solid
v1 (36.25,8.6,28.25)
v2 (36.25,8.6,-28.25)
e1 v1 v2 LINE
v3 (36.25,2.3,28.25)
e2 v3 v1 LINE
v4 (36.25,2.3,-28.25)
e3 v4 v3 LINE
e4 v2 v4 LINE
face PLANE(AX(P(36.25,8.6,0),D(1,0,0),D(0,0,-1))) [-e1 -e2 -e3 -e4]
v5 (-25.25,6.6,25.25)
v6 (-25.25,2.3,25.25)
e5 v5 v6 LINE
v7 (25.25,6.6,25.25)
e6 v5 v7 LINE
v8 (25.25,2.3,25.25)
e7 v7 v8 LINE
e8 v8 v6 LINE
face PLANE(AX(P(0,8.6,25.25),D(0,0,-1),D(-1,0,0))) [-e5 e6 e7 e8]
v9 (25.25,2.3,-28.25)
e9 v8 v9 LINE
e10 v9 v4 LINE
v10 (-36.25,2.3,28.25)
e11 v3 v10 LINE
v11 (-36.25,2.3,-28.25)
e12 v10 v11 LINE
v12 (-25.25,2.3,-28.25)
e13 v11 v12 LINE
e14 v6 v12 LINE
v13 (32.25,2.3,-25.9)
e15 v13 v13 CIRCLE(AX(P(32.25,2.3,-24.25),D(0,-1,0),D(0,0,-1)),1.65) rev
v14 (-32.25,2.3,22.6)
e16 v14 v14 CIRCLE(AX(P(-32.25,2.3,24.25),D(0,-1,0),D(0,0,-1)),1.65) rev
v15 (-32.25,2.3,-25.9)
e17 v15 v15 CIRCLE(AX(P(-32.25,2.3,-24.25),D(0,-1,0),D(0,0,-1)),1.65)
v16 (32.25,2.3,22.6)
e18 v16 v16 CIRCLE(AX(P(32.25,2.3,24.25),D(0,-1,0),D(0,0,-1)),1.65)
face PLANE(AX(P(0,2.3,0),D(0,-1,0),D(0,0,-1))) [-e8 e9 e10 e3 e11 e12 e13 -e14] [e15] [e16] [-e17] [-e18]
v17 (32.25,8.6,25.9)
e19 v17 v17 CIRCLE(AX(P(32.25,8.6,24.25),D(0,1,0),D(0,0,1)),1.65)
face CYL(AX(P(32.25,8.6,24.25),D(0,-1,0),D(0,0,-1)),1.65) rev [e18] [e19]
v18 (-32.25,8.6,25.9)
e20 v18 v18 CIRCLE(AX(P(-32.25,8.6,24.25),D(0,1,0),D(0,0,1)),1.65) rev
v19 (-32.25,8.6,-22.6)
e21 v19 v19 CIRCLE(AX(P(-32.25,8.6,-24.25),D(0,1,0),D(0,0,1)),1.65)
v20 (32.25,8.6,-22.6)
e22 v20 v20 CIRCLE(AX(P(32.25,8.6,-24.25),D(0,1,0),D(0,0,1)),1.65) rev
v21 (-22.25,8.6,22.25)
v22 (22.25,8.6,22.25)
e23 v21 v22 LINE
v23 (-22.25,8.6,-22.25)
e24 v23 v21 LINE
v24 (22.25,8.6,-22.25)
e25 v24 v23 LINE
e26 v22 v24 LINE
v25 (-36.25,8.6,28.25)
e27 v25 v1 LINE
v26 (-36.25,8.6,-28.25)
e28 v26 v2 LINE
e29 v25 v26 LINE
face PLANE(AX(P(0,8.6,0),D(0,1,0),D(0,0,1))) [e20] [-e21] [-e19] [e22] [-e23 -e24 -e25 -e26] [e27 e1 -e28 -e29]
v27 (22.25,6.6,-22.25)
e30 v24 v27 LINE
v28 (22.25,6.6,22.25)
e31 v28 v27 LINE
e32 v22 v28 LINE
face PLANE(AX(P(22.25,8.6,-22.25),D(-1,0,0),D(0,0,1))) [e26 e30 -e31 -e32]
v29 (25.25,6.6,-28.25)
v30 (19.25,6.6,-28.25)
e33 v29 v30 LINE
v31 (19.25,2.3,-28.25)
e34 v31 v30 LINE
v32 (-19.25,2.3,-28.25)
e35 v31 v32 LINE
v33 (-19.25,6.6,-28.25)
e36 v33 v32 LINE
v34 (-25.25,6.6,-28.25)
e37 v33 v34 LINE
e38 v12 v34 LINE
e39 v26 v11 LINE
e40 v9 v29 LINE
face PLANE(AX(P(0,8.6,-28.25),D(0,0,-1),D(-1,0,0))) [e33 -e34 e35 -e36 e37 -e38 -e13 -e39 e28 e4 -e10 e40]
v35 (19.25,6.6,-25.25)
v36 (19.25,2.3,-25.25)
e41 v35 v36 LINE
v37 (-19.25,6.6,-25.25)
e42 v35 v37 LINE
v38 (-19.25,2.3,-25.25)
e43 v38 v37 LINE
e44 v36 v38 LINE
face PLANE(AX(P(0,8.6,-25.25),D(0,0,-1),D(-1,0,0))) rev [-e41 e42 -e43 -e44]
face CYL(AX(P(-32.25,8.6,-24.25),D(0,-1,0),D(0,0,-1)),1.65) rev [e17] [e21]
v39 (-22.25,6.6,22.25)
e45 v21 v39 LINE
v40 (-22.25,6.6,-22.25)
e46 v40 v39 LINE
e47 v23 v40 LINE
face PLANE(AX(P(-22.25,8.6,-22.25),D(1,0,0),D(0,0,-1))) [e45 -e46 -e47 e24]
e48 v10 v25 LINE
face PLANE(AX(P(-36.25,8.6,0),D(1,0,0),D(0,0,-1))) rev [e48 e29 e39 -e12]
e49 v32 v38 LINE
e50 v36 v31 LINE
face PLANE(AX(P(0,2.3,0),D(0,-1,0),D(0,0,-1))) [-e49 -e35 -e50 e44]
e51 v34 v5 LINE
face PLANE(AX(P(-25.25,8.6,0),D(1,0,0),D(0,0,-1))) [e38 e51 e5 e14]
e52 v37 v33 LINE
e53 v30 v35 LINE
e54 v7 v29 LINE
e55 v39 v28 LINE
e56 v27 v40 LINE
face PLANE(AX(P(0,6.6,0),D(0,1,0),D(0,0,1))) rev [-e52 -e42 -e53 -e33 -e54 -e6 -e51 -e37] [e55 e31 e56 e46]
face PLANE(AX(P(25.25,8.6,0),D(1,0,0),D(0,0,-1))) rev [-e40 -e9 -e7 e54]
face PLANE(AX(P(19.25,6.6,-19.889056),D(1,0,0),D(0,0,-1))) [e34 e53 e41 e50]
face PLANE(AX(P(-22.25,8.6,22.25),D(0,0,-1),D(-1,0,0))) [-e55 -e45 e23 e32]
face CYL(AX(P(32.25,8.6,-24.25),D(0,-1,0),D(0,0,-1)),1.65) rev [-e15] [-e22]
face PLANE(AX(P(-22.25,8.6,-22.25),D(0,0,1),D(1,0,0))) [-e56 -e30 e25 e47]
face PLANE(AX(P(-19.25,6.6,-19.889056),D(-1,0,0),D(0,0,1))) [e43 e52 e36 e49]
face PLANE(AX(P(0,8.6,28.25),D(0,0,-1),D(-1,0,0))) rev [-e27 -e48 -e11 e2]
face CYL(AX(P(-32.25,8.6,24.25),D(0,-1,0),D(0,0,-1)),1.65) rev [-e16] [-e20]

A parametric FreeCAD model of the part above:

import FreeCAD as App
import Part
import Sketcher


def add_polygon(sketch, points):
    """Adds a closed chain of lines whose ends are joined by coincident constraints."""
    first, n = sketch.GeometryCount, len(points)
    for a, b in zip(points, points[1:] + points[:1]):
        sketch.addGeometry(Part.LineSegment(App.Vector(*a, 0), App.Vector(*b, 0)), False)
    for i in range(n):
        sketch.addConstraint(Sketcher.Constraint("Coincident", first + i, 2, first + (i + 1) % n, 1))

doc = App.newDocument("Part")
body = doc.addObject("PartDesign::Body", "Body")

# Sketch on XZ plane
sketch1 = body.newObject("Sketcher::SketchObject", "Sketch")
sketch1.AttachmentSupport = (doc.getObject("XZ_Plane"), [""])
sketch1.MapMode = "FlatFace"
add_polygon(sketch1, [(-28.2, -12.2), (-28.2, 12.2), (-36.2, 20.2), (-36.2, 30.2), (-32.2, 34.2), (-24.2, 34.2), (-18.2, 28.2), (18.2, 28.2), (24.2, 34.2), (32.2, 34.2), (36.2, 30.2), (36.2, 20.2), (28.2, 12.2), (28.2, -12.2), (36.2, -20.2), (36.2, -30.2), (32.2, -34.2), (24.2, -34.2), (18.2, -28.2), (-18.2, -28.2), (-24.2, -34.2), (-32.2, -34.2), (-36.2, -30.2), (-36.2, -20.2)])  # lines 0-23
sketch1.addGeometry(Part.Circle(App.Vector(-32.2, 24.2, 0), App.Vector(0, 0, 1), 1.6), False)  # 24
add_polygon(sketch1, [(25.2, 25.2), (-25.2, 25.2), (-25.2, -25.2), (25.2, -25.2)])  # lines 25-28
sketch1.addGeometry(Part.Circle(App.Vector(32.2, 24.2, 0), App.Vector(0, 0, 1), 1.6), False)  # 29
sketch1.addGeometry(Part.Circle(App.Vector(-32.2, -24.2, 0), App.Vector(0, 0, 1), 1.6), False)  # 30
sketch1.addGeometry(Part.Circle(App.Vector(32.2, -24.2, 0), App.Vector(0, 0, 1), 1.6), False)  # 31
sketch1.addConstraint(Sketcher.Constraint("Vertical", 0))
sketch1.addConstraint(Sketcher.Constraint("Vertical", 2))
sketch1.addConstraint(Sketcher.Constraint("Horizontal", 4))
sketch1.addConstraint(Sketcher.Constraint("Horizontal", 6))
sketch1.addConstraint(Sketcher.Constraint("Horizontal", 8))
sketch1.addConstraint(Sketcher.Constraint("Vertical", 10))
sketch1.addConstraint(Sketcher.Constraint("Vertical", 12))
sketch1.addConstraint(Sketcher.Constraint("Vertical", 14))
sketch1.addConstraint(Sketcher.Constraint("Horizontal", 16))
sketch1.addConstraint(Sketcher.Constraint("Horizontal", 18))
sketch1.addConstraint(Sketcher.Constraint("Horizontal", 20))
sketch1.addConstraint(Sketcher.Constraint("Vertical", 22))
sketch1.addConstraint(Sketcher.Constraint("Horizontal", 25))
sketch1.addConstraint(Sketcher.Constraint("Vertical", 26))
sketch1.addConstraint(Sketcher.Constraint("Horizontal", 27))
sketch1.addConstraint(Sketcher.Constraint("Vertical", 28))
sketch1.addConstraint(Sketcher.Constraint("Equal", 24, 29))
sketch1.addConstraint(Sketcher.Constraint("Equal", 29, 30))
sketch1.addConstraint(Sketcher.Constraint("Equal", 30, 31))
sketch1.addConstraint(Sketcher.Constraint("Symmetric", 29, 3, 30, 3, -1, 1))
sketch1.addConstraint(Sketcher.Constraint("Symmetric", 24, 3, 31, 3, -1, 1))
sketch1.addConstraint(Sketcher.Constraint("Symmetric", 0, 2, 12, 2, -1, 1))
sketch1.addConstraint(Sketcher.Constraint("Symmetric", 1, 2, 13, 2, -1, 1))
sketch1.addConstraint(Sketcher.Constraint("Symmetric", 3, 2, 15, 2, -1, 1))
sketch1.addConstraint(Sketcher.Constraint("Symmetric", 5, 2, 17, 2, -1, 1))
sketch1.addConstraint(Sketcher.Constraint("Symmetric", 7, 2, 19, 2, -1, 1))
sketch1.addConstraint(Sketcher.Constraint("Symmetric", 9, 2, 21, 2, -1, 1))
sketch1.addConstraint(Sketcher.Constraint("Symmetric", 25, 2, 27, 2, -1, 1))
sketch1.addConstraint(Sketcher.Constraint("Symmetric", 24, 3, 29, 3, -2))
sketch1.addConstraint(Sketcher.Constraint("Symmetric", 4, 2, 7, 2, -2))
sketch1.addConstraint(Sketcher.Constraint("Symmetric", 2, 2, 9, 2, -2))
sketch1.addConstraint(Sketcher.Constraint("Perpendicular", 1, 3))
sketch1.addConstraint(Sketcher.Constraint("Perpendicular", 3, 5))
sketch1.addConstraint(Sketcher.Constraint("Perpendicular", 5, 7))
sketch1.addConstraint(Sketcher.Constraint("Perpendicular", 7, 9))
sketch1.addConstraint(Sketcher.Constraint("Perpendicular", 9, 11))
sketch1.addConstraint(Sketcher.Constraint("Perpendicular", 13, 15))
sketch1.addConstraint(Sketcher.Constraint("Perpendicular", 15, 17))
sketch1.addConstraint(Sketcher.Constraint("Perpendicular", 17, 19))
sketch1.addConstraint(Sketcher.Constraint("Perpendicular", 19, 21))
sketch1.addConstraint(Sketcher.Constraint("Perpendicular", 21, 23))
sketch1.addConstraint(Sketcher.Constraint("Horizontal", 1, 2, 10, 2))
sketch1.addConstraint(Sketcher.Constraint("Horizontal", 0, 2, 11, 2))
sketch1.addConstraint(Sketcher.Constraint("Horizontal", 13, 2, 22, 2))
sketch1.addConstraint(Sketcher.Constraint("Vertical", 30, 3, 3, 2))
sketch1.addConstraint(Sketcher.Constraint("Equal", 27, 26))
sketch1.addConstraint(Sketcher.Constraint("Diameter", 24, 3.3))
sketch1.addConstraint(Sketcher.Constraint("DistanceX", 4, 1, 4, 2, 8.0))
sketch1.addConstraint(Sketcher.Constraint("DistanceY", 2, 1, 2, 2, 10.0))
sketch1.addConstraint(Sketcher.Constraint("DistanceX", 6, 1, 6, 2, 36.5))
sketch1.addConstraint(Sketcher.Constraint("DistanceX", 25, 2, 25, 1, 50.5))
sketch1.addConstraint(Sketcher.Constraint("DistanceY", 0, 1, 0, 2, 24.5))
sketch1.addConstraint(Sketcher.Constraint("DistanceX", 24, 3, 0, 2, 4.0))
sketch1.addConstraint(Sketcher.Constraint("DistanceY", 0, 2, 24, 3, 12.0))
sketch1.addConstraint(Sketcher.Constraint("DistanceX", 1, 2, 24, 3, 4.0))
sketch1.addConstraint(Sketcher.Constraint("DistanceX", 4, 2, 5, 2, 6.0))
pad1 = body.newObject("PartDesign::Pad", "Pad")
pad1.Profile = sketch1
pad1.Length = 8.6
pad1.Reversed = True

# Sketch on XZ plane
sketch2 = body.newObject("Sketcher::SketchObject", "Sketch001")
sketch2.AttachmentSupport = (doc.getObject("XZ_Plane"), [""])
sketch2.MapMode = "FlatFace"
add_polygon(sketch2, [(-25, -25), (-25, 25), (25, 25), (25, -25)])  # lines 0-3
add_polygon(sketch2, [(22, 22), (-22, 22), (-22, -22), (22, -22)])  # lines 4-7
sketch2.addConstraint(Sketcher.Constraint("Vertical", 0))
sketch2.addConstraint(Sketcher.Constraint("Horizontal", 1))
sketch2.addConstraint(Sketcher.Constraint("Vertical", 2))
sketch2.addConstraint(Sketcher.Constraint("Horizontal", 3))
sketch2.addConstraint(Sketcher.Constraint("Horizontal", 4))
sketch2.addConstraint(Sketcher.Constraint("Vertical", 5))
sketch2.addConstraint(Sketcher.Constraint("Horizontal", 6))
sketch2.addConstraint(Sketcher.Constraint("Vertical", 7))
sketch2.addConstraint(Sketcher.Constraint("Symmetric", 0, 2, 2, 2, -1, 1))
sketch2.addConstraint(Sketcher.Constraint("Symmetric", 4, 2, 6, 2, -1, 1))
sketch2.addConstraint(Sketcher.Constraint("Equal", 3, 0))
sketch2.addConstraint(Sketcher.Constraint("Equal", 6, 5))
sketch2.addConstraint(Sketcher.Constraint("DistanceX", 1, 1, 1, 2, 50.5))
sketch2.addConstraint(Sketcher.Constraint("DistanceX", 4, 2, 4, 1, 44.5))
pad2 = body.newObject("PartDesign::Pad", "Pad001")
pad2.Profile = sketch2
pad2.Length = 2
pad2.Reversed = True

# Sketch on XZ plane
sketch3 = body.newObject("Sketcher::SketchObject", "Sketch002")
sketch3.AttachmentSupport = (doc.getObject("XZ_Plane"), [""])
sketch3.MapMode = "FlatFace"
sketch3.AttachmentOffset = App.Placement(App.Vector(0, 0, -6.6), App.Rotation())
add_polygon(sketch3, [(-25, -25), (-25, 25), (25, 25), (25, -25)])  # lines 0-3
add_polygon(sketch3, [(22, 22), (-22, 22), (-22, -22), (22, -22)])  # lines 4-7
sketch3.addConstraint(Sketcher.Constraint("Vertical", 0))
sketch3.addConstraint(Sketcher.Constraint("Horizontal", 1))
sketch3.addConstraint(Sketcher.Constraint("Vertical", 2))
sketch3.addConstraint(Sketcher.Constraint("Horizontal", 3))
sketch3.addConstraint(Sketcher.Constraint("Horizontal", 4))
sketch3.addConstraint(Sketcher.Constraint("Vertical", 5))
sketch3.addConstraint(Sketcher.Constraint("Horizontal", 6))
sketch3.addConstraint(Sketcher.Constraint("Vertical", 7))
sketch3.addConstraint(Sketcher.Constraint("Symmetric", 0, 2, 2, 2, -1, 1))
sketch3.addConstraint(Sketcher.Constraint("Symmetric", 4, 2, 6, 2, -1, 1))
sketch3.addConstraint(Sketcher.Constraint("Equal", 3, 0))
sketch3.addConstraint(Sketcher.Constraint("Equal", 6, 5))
sketch3.addConstraint(Sketcher.Constraint("DistanceX", 1, 1, 1, 2, 50.5))
sketch3.addConstraint(Sketcher.Constraint("DistanceX", 4, 2, 4, 1, 44.5))
pad3 = body.newObject("PartDesign::Pad", "Pad002")
pad3.Profile = sketch3
pad3.Length = 2
pad3.Reversed = True

# Sketch on XZ plane
sketch4 = body.newObject("Sketcher::SketchObject", "Sketch003")
sketch4.AttachmentSupport = (doc.getObject("XZ_Plane"), [""])
sketch4.MapMode = "FlatFace"
sketch4.AttachmentOffset = App.Placement(App.Vector(0, 0, -2), App.Rotation())
add_polygon(sketch4, [(-25, -38), (-25, -20), (-19, -20), (-19, -38)])  # lines 0-3
add_polygon(sketch4, [(19, -38), (19, -20), (25, -20), (25, -38)])  # lines 4-7
sketch4.addConstraint(Sketcher.Constraint("Vertical", 0))
sketch4.addConstraint(Sketcher.Constraint("Horizontal", 1))
sketch4.addConstraint(Sketcher.Constraint("Vertical", 2))
sketch4.addConstraint(Sketcher.Constraint("Horizontal", 3))
sketch4.addConstraint(Sketcher.Constraint("Vertical", 4))
sketch4.addConstraint(Sketcher.Constraint("Horizontal", 5))
sketch4.addConstraint(Sketcher.Constraint("Vertical", 6))
sketch4.addConstraint(Sketcher.Constraint("Horizontal", 7))
sketch4.addConstraint(Sketcher.Constraint("Symmetric", 1, 2, 4, 2, -2))
sketch4.addConstraint(Sketcher.Constraint("Symmetric", 3, 2, 6, 2, -2))
sketch4.addConstraint(Sketcher.Constraint("DistanceX", 1, 1, 1, 2, 6.0))
sketch4.addConstraint(Sketcher.Constraint("DistanceX", 1, 2, 4, 2, 38.5))
sketch4.addConstraint(Sketcher.Constraint("DistanceY", 0, 1, 0, 2, 17.961455))
sketch4.addConstraint(Sketcher.Constraint("DistanceY", 2, 2, -1, 1, 37.850511))
pocket1 = body.newObject("PartDesign::Pocket", "Pocket")
pocket1.Profile = sketch4
pocket1.Length = 4.6

# Sketch on XZ plane
sketch5 = body.newObject("Sketcher::SketchObject", "Sketch004")
sketch5.AttachmentSupport = (doc.getObject("XZ_Plane"), [""])
sketch5.MapMode = "FlatFace"
add_polygon(sketch5, [(-42, 40), (-42, -43), (46, -43), (46, 40)])  # lines 0-3
sketch5.addConstraint(Sketcher.Constraint("Vertical", 0))
sketch5.addConstraint(Sketcher.Constraint("Horizontal", 1))
sketch5.addConstraint(Sketcher.Constraint("Vertical", 2))
sketch5.addConstraint(Sketcher.Constraint("Horizontal", 3))
sketch5.addConstraint(Sketcher.Constraint("DistanceY", -1, 1, 2, 2, 39.560001))
sketch5.addConstraint(Sketcher.Constraint("DistanceX", 1, 1, 1, 2, 87.320539))
sketch5.addConstraint(Sketcher.Constraint("DistanceY", 0, 2, 0, 1, 82.157237))
sketch5.addConstraint(Sketcher.Constraint("DistanceX", 0, 2, -1, 1, 41.761997))
pocket2 = body.newObject("PartDesign::Pocket", "Pocket001")
pocket2.Profile = sketch5
pocket2.Length = 2.3

# Sketch on XZ plane
sketch6 = body.newObject("Sketcher::SketchObject", "Sketch005")
sketch6.AttachmentSupport = (doc.getObject("XZ_Plane"), [""])
sketch6.MapMode = "FlatFace"
sketch6.AttachmentOffset = App.Placement(App.Vector(0, 0, -8.6), App.Rotation())
add_polygon(sketch6, [(-41, 28), (-41, 35), (39, 35), (39, 28)])  # lines 0-3
add_polygon(sketch6, [(36, 20), (36, -20), (28, -20), (28, 20)])  # lines 4-7
add_polygon(sketch6, [(-36, -20), (-36, 20), (-28, 20), (-28, -20)])  # lines 8-11
add_polygon(sketch6, [(-38, -37), (-38, -28), (41, -28), (41, -37)])  # lines 12-15
sketch6.addConstraint(Sketcher.Constraint("Vertical", 0))
sketch6.addConstraint(Sketcher.Constraint("Horizontal", 1))
sketch6.addConstraint(Sketcher.Constraint("Vertical", 2))
sketch6.addConstraint(Sketcher.Constraint("Horizontal", 3))
sketch6.addConstraint(Sketcher.Constraint("Vertical", 4))
sketch6.addConstraint(Sketcher.Constraint("Horizontal", 5))
sketch6.addConstraint(Sketcher.Constraint("Vertical", 6))
sketch6.addConstraint(Sketcher.Constraint("Horizontal", 7))
sketch6.addConstraint(Sketcher.Constraint("Vertical", 8))
sketch6.addConstraint(Sketcher.Constraint("Horizontal", 9))
sketch6.addConstraint(Sketcher.Constraint("Vertical", 10))
sketch6.addConstraint(Sketcher.Constraint("Horizontal", 11))
sketch6.addConstraint(Sketcher.Constraint("Vertical", 12))
sketch6.addConstraint(Sketcher.Constraint("Horizontal", 13))
sketch6.addConstraint(Sketcher.Constraint("Vertical", 14))
sketch6.addConstraint(Sketcher.Constraint("Horizontal", 15))
sketch6.addConstraint(Sketcher.Constraint("Symmetric", 4, 2, 8, 2, -1, 1))
sketch6.addConstraint(Sketcher.Constraint("Symmetric", 6, 2, 10, 2, -1, 1))
sketch6.addConstraint(Sketcher.Constraint("Horizontal", 7, 2, 8, 2))
sketch6.addConstraint(Sketcher.Constraint("DistanceX", 5, 2, 5, 1, 8.0))
sketch6.addConstraint(Sketcher.Constraint("DistanceY", 4, 2, 4, 1, 40.5))
sketch6.addConstraint(Sketcher.Constraint("DistanceY", 6, 2, 2, 2, 8.0))
sketch6.addConstraint(Sketcher.Constraint("DistanceY", 12, 2, 11, 2, 8.0))
sketch6.addConstraint(Sketcher.Constraint("DistanceX", 8, 2, 6, 2, 64.5))
sketch6.addConstraint(Sketcher.Constraint("DistanceX", 1, 1, 1, 2, 80.066111))
sketch6.addConstraint(Sketcher.Constraint("DistanceY", 0, 1, 0, 2, 6.745321))
sketch6.addConstraint(Sketcher.Constraint("DistanceX", -1, 1, 13, 2, 40.981198))
sketch6.addConstraint(Sketcher.Constraint("DistanceX", 13, 1, 13, 2, 79.188804))
sketch6.addConstraint(Sketcher.Constraint("DistanceY", 12, 1, 12, 2, 8.474555))
sketch6.addConstraint(Sketcher.Constraint("DistanceX", 0, 2, -1, 1, 40.881769))
pocket3 = body.newObject("PartDesign::Pocket", "Pocket002")
pocket3.Profile = sketch6
pocket3.Length = 10
pocket3.Reversed = True

# Sketch on XZ plane
sketch7 = body.newObject("Sketcher::SketchObject", "Sketch006")
sketch7.AttachmentSupport = (doc.getObject("XZ_Plane"), [""])
sketch7.MapMode = "FlatFace"
sketch7.AttachmentOffset = App.Placement(App.Vector(0, 0, -8.6), App.Rotation())
add_polygon(sketch7, [(-36, -20), (-36, 20), (-28, 20), (-28, -20)])  # lines 0-3
add_polygon(sketch7, [(28, -20), (28, 20), (36, 20), (36, -20)])  # lines 4-7
sketch7.addConstraint(Sketcher.Constraint("Vertical", 0))
sketch7.addConstraint(Sketcher.Constraint("Horizontal", 1))
sketch7.addConstraint(Sketcher.Constraint("Vertical", 2))
sketch7.addConstraint(Sketcher.Constraint("Horizontal", 3))
sketch7.addConstraint(Sketcher.Constraint("Vertical", 4))
sketch7.addConstraint(Sketcher.Constraint("Horizontal", 5))
sketch7.addConstraint(Sketcher.Constraint("Vertical", 6))
sketch7.addConstraint(Sketcher.Constraint("Horizontal", 7))
sketch7.addConstraint(Sketcher.Constraint("Symmetric", 2, 2, 4, 2, -1, 1))
sketch7.addConstraint(Sketcher.Constraint("Symmetric", 0, 2, 6, 2, -1, 1))
sketch7.addConstraint(Sketcher.Constraint("Horizontal", 1, 2, 4, 2))
sketch7.addConstraint(Sketcher.Constraint("DistanceX", 1, 1, 1, 2, 8.0))
sketch7.addConstraint(Sketcher.Constraint("DistanceY", 0, 1, 0, 2, 40.5))
sketch7.addConstraint(Sketcher.Constraint("DistanceX", 1, 2, 4, 2, 56.5))
pad4 = body.newObject("PartDesign::Pad", "Pad003")
pad4.Profile = sketch7
pad4.Length = 6.3

doc.recompute()
